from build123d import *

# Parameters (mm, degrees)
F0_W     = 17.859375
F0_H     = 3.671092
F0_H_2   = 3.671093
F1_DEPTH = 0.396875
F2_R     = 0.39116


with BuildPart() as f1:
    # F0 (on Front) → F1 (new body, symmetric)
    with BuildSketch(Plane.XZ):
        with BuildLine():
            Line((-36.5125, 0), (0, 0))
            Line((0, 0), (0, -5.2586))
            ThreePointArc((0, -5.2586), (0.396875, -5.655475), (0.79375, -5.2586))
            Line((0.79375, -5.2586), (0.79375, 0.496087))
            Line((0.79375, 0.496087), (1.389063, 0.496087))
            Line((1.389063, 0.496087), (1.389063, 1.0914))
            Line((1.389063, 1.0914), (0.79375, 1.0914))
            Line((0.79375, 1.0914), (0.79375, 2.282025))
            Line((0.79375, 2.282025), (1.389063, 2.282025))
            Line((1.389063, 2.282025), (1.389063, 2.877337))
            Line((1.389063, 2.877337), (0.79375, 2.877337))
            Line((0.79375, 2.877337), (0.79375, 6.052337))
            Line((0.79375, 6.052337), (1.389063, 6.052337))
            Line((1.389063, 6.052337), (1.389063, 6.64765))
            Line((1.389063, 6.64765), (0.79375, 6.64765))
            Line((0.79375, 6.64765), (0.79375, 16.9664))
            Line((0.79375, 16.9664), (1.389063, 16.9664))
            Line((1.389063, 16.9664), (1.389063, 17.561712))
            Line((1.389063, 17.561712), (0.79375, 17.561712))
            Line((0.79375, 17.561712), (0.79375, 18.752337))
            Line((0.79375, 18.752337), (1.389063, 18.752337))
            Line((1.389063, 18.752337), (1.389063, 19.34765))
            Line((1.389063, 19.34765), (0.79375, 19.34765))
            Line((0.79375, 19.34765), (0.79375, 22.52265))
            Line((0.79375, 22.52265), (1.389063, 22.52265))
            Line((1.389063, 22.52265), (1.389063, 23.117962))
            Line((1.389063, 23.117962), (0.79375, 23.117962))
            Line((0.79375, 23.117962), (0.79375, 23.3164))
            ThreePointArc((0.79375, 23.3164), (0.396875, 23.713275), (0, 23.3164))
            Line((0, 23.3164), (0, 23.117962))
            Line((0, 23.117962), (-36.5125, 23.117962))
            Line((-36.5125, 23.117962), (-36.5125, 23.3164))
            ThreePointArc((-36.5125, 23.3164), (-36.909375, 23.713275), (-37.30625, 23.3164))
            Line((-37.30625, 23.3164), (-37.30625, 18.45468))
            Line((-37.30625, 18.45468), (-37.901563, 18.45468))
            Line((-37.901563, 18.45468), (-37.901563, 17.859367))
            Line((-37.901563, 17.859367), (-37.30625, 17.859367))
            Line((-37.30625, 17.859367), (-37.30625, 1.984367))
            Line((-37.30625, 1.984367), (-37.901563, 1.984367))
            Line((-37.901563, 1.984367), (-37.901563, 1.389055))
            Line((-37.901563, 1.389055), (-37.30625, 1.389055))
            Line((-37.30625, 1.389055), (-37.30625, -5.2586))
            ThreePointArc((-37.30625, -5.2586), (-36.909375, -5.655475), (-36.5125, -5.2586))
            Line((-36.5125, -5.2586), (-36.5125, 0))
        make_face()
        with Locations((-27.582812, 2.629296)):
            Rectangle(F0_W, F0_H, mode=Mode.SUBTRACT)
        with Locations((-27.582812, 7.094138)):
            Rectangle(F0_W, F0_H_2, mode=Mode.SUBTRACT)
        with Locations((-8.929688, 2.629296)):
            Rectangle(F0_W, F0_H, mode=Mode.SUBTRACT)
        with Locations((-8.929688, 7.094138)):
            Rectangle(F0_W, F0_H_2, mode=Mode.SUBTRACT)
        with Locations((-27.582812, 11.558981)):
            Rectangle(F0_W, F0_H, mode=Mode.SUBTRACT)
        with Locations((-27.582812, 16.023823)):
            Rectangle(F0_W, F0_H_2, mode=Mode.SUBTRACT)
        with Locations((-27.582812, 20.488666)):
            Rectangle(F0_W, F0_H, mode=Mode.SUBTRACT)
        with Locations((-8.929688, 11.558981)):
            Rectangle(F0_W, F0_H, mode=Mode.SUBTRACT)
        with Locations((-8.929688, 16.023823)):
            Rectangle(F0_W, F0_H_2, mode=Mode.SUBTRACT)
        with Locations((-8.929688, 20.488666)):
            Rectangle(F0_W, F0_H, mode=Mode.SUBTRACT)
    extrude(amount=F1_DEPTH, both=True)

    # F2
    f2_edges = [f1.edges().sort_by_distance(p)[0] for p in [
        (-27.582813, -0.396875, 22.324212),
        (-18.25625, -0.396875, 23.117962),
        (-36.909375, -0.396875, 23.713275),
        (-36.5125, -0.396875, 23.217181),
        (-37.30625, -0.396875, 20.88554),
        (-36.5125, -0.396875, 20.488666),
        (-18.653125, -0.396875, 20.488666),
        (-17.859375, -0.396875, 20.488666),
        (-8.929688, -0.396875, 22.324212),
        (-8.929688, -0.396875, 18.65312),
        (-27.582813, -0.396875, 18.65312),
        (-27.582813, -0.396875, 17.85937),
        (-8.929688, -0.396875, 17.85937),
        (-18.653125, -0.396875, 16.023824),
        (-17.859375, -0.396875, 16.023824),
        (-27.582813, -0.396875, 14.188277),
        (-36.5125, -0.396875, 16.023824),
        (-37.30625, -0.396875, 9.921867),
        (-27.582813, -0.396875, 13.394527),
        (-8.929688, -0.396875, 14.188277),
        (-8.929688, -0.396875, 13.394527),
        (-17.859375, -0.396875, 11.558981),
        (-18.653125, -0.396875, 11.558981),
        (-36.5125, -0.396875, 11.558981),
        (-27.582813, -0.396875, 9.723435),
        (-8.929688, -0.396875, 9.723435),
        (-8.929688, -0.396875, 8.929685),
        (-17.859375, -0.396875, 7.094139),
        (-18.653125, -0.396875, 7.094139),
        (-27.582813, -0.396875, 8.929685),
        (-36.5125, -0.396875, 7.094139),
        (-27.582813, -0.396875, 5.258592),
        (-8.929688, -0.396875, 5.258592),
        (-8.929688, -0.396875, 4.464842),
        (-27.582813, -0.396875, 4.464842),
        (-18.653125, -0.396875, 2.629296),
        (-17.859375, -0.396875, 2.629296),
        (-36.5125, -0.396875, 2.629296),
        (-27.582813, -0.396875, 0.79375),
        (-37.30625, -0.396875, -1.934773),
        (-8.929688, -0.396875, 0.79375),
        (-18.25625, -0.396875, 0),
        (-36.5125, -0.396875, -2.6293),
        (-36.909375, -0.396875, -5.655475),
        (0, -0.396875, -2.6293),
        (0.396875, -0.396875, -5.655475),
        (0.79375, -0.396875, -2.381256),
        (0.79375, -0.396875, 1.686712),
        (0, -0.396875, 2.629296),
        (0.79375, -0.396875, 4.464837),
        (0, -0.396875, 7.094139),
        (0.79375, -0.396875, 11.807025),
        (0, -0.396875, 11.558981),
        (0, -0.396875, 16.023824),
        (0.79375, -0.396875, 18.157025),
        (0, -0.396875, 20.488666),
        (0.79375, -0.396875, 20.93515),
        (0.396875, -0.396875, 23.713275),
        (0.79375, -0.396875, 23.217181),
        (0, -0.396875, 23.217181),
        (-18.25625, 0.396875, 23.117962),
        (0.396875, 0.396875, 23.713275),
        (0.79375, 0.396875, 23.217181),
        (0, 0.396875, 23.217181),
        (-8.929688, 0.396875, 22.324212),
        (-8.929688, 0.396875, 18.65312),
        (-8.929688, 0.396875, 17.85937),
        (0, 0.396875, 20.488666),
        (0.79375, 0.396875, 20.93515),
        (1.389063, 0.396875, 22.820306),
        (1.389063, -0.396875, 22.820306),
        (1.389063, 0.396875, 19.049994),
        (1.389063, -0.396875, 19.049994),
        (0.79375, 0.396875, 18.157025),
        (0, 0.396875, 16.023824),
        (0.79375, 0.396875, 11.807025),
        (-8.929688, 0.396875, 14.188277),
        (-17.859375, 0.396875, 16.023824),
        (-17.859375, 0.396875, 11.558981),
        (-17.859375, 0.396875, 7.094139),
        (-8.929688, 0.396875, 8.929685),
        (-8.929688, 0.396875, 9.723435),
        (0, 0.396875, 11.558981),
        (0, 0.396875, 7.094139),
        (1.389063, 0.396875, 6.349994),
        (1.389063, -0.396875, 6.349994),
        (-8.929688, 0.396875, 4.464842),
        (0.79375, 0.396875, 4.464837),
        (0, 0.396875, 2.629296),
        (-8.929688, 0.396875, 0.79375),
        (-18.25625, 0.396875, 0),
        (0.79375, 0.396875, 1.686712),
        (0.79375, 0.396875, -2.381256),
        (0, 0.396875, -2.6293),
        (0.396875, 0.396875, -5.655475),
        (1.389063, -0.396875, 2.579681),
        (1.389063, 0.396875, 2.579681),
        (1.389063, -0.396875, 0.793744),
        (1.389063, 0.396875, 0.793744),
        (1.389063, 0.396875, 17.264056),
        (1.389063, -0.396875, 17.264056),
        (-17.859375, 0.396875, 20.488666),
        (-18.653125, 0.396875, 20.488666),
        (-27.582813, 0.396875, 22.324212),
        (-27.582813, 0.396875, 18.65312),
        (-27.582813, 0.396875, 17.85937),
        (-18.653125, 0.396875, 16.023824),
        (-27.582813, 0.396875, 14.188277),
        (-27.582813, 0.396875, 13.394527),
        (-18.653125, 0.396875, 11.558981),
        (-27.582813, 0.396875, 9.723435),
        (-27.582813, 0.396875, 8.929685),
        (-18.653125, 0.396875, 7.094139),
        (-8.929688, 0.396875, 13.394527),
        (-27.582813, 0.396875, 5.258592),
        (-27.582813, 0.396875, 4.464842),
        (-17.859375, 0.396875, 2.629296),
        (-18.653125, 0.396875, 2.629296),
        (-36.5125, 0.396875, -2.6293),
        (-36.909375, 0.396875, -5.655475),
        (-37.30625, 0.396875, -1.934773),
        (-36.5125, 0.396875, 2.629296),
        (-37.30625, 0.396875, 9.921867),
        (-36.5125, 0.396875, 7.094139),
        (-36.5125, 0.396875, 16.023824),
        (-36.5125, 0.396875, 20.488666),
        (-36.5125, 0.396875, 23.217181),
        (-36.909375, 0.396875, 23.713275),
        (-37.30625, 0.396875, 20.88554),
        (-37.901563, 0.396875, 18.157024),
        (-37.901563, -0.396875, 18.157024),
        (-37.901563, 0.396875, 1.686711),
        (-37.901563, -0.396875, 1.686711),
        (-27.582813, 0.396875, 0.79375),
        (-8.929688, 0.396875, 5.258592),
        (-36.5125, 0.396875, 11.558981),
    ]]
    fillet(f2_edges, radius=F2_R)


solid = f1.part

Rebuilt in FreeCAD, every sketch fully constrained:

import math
import FreeCAD as App
import Part
import Sketcher
Q = App.Units.Quantity


def edges_at(feature, points):
    """Names of the edges that pass closest to the given points."""
    edges = feature.Shape.Edges
    near = lambda p: min(range(len(edges)), key=lambda i: edges[i].distToShape(Part.Vertex(*p))[0])
    return sorted({f"Edge{near(p) + 1}" for p in points})

doc = App.newDocument("Part")
body = doc.addObject("PartDesign::Body", "Body")

sketch1 = body.newObject("Sketcher::SketchObject", "Sketch")
sketch1.AttachmentSupport = (doc.getObject("XZ_Plane"), [""])
sketch1.MapMode = "FlatFace"
sketch1.addGeometry([
    Part.LineSegment(App.Vector(-36.51, 0, 0), App.Vector(0, 0, 0)),
    Part.LineSegment(App.Vector(0, 0, 0), App.Vector(0, -5.26, 0)),
    Part.ArcOfCircle(Part.Circle(App.Vector(0.4, -5.26, 0), App.Vector(0, 0, 1), 0.4), math.radians(180), math.radians(360)),
    Part.LineSegment(App.Vector(0.79, -5.26, 0), App.Vector(0.79, 0.5, 0)),
    Part.LineSegment(App.Vector(0.79, 0.5, 0), App.Vector(1.39, 0.5, 0)),
    Part.LineSegment(App.Vector(1.39, 0.5, 0), App.Vector(1.39, 1.09, 0)),
    Part.LineSegment(App.Vector(1.39, 1.09, 0), App.Vector(0.79, 1.09, 0)),
    Part.LineSegment(App.Vector(0.79, 1.09, 0), App.Vector(0.79, 2.28, 0)),
    Part.LineSegment(App.Vector(0.79, 2.28, 0), App.Vector(1.39, 2.28, 0)),
    Part.LineSegment(App.Vector(1.39, 2.28, 0), App.Vector(1.39, 2.88, 0)),
    Part.LineSegment(App.Vector(1.39, 2.88, 0), App.Vector(0.79, 2.88, 0)),
    Part.LineSegment(App.Vector(0.79, 2.88, 0), App.Vector(0.79, 6.05, 0)),
    Part.LineSegment(App.Vector(0.79, 6.05, 0), App.Vector(1.39, 6.05, 0)),
    Part.LineSegment(App.Vector(1.39, 6.05, 0), App.Vector(1.39, 6.65, 0)),
    Part.LineSegment(App.Vector(1.39, 6.65, 0), App.Vector(0.79, 6.65, 0)),
    Part.LineSegment(App.Vector(0.79, 6.65, 0), App.Vector(0.79, 16.97, 0)),
    Part.LineSegment(App.Vector(0.79, 16.97, 0), App.Vector(1.39, 16.97, 0)),
    Part.LineSegment(App.Vector(1.39, 16.97, 0), App.Vector(1.39, 17.56, 0)),
    Part.LineSegment(App.Vector(1.39, 17.56, 0), App.Vector(0.79, 17.56, 0)),
    Part.LineSegment(App.Vector(0.79, 17.56, 0), App.Vector(0.79, 18.75, 0)),
    Part.LineSegment(App.Vector(0.79, 18.75, 0), App.Vector(1.39, 18.75, 0)),
    Part.LineSegment(App.Vector(1.39, 18.75, 0), App.Vector(1.39, 19.35, 0)),
    Part.LineSegment(App.Vector(1.39, 19.35, 0), App.Vector(0.79, 19.35, 0)),
    Part.LineSegment(App.Vector(0.79, 19.35, 0), App.Vector(0.79, 22.52, 0)),
    Part.LineSegment(App.Vector(0.79, 22.52, 0), App.Vector(1.39, 22.52, 0)),
    Part.LineSegment(App.Vector(1.39, 22.52, 0), App.Vector(1.39, 23.12, 0)),
    Part.LineSegment(App.Vector(1.39, 23.12, 0), App.Vector(0.79, 23.12, 0)),
    Part.LineSegment(App.Vector(0.79, 23.12, 0), App.Vector(0.79, 23.32, 0)),
    Part.ArcOfCircle(Part.Circle(App.Vector(0.4, 23.32, 0), App.Vector(0, 0, 1), 0.4), math.radians(0), math.radians(180)),
    Part.LineSegment(App.Vector(0, 23.32, 0), App.Vector(0, 23.12, 0)),
    Part.LineSegment(App.Vector(0, 23.12, 0), App.Vector(-36.51, 23.12, 0)),
    Part.LineSegment(App.Vector(-36.51, 23.12, 0), App.Vector(-36.51, 23.32, 0)),
    Part.ArcOfCircle(Part.Circle(App.Vector(-36.91, 23.32, 0), App.Vector(0, 0, 1), 0.4), math.radians(0), math.radians(180)),
    Part.LineSegment(App.Vector(-37.31, 23.32, 0), App.Vector(-37.31, 18.45, 0)),
    Part.LineSegment(App.Vector(-37.31, 18.45, 0), App.Vector(-37.9, 18.45, 0)),
    Part.LineSegment(App.Vector(-37.9, 18.45, 0), App.Vector(-37.9, 17.86, 0)),
    Part.LineSegment(App.Vector(-37.9, 17.86, 0), App.Vector(-37.31, 17.86, 0)),
    Part.LineSegment(App.Vector(-37.31, 17.86, 0), App.Vector(-37.31, 1.98, 0)),
    Part.LineSegment(App.Vector(-37.31, 1.98, 0), App.Vector(-37.9, 1.98, 0)),
    Part.LineSegment(App.Vector(-37.9, 1.98, 0), App.Vector(-37.9, 1.39, 0)),
    Part.LineSegment(App.Vector(-37.9, 1.39, 0), App.Vector(-37.31, 1.39, 0)),
    Part.LineSegment(App.Vector(-37.31, 1.39, 0), App.Vector(-37.31, -5.26, 0)),
    Part.ArcOfCircle(Part.Circle(App.Vector(-36.91, -5.26, 0), App.Vector(0, 0, 1), 0.4), math.radians(180), math.radians(360)),
    Part.LineSegment(App.Vector(-36.51, -5.26, 0), App.Vector(-36.51, 0, 0)),
    Part.LineSegment(App.Vector(-18.65, 0.79, 0), App.Vector(-36.51, 0.79, 0)),
    Part.LineSegment(App.Vector(-36.51, 0.79, 0), App.Vector(-36.51, 4.46, 0)),
    Part.LineSegment(App.Vector(-36.51, 4.46, 0), App.Vector(-18.65, 4.46, 0)),
    Part.LineSegment(App.Vector(-18.65, 4.46, 0), App.Vector(-18.65, 0.79, 0)),
    Part.LineSegment(App.Vector(-18.65, 5.26, 0), App.Vector(-36.51, 5.26, 0)),
    Part.LineSegment(App.Vector(-36.51, 5.26, 0), App.Vector(-36.51, 8.93, 0)),
    Part.LineSegment(App.Vector(-36.51, 8.93, 0), App.Vector(-18.65, 8.93, 0)),
    Part.LineSegment(App.Vector(-18.65, 8.93, 0), App.Vector(-18.65, 5.26, 0)),
    Part.LineSegment(App.Vector(0, 0.79, 0), App.Vector(-17.86, 0.79, 0)),
    Part.LineSegment(App.Vector(-17.86, 0.79, 0), App.Vector(-17.86, 4.46, 0)),
    Part.LineSegment(App.Vector(-17.86, 4.46, 0), App.Vector(0, 4.46, 0)),
    Part.LineSegment(App.Vector(0, 4.46, 0), App.Vector(0, 0.79, 0)),
    Part.LineSegment(App.Vector(0, 5.26, 0), App.Vector(-17.86, 5.26, 0)),
    Part.LineSegment(App.Vector(-17.86, 5.26, 0), App.Vector(-17.86, 8.93, 0)),
    Part.LineSegment(App.Vector(-17.86, 8.93, 0), App.Vector(0, 8.93, 0)),
    Part.LineSegment(App.Vector(0, 8.93, 0), App.Vector(0, 5.26, 0)),
    Part.LineSegment(App.Vector(-18.65, 9.72, 0), App.Vector(-36.51, 9.72, 0)),
    Part.LineSegment(App.Vector(-36.51, 9.72, 0), App.Vector(-36.51, 13.39, 0)),
    Part.LineSegment(App.Vector(-36.51, 13.39, 0), App.Vector(-18.65, 13.39, 0)),
    Part.LineSegment(App.Vector(-18.65, 13.39, 0), App.Vector(-18.65, 9.72, 0)),
    Part.LineSegment(App.Vector(-18.65, 14.19, 0), App.Vector(-36.51, 14.19, 0)),
    Part.LineSegment(App.Vector(-36.51, 14.19, 0), App.Vector(-36.51, 17.86, 0)),
    Part.LineSegment(App.Vector(-36.51, 17.86, 0), App.Vector(-18.65, 17.86, 0)),
    Part.LineSegment(App.Vector(-18.65, 17.86, 0), App.Vector(-18.65, 14.19, 0)),
    Part.LineSegment(App.Vector(-18.65, 18.65, 0), App.Vector(-36.51, 18.65, 0)),
    Part.LineSegment(App.Vector(-36.51, 18.65, 0), App.Vector(-36.51, 22.32, 0)),
    Part.LineSegment(App.Vector(-36.51, 22.32, 0), App.Vector(-18.65, 22.32, 0)),
    Part.LineSegment(App.Vector(-18.65, 22.32, 0), App.Vector(-18.65, 18.65, 0)),
    Part.LineSegment(App.Vector(0, 9.72, 0), App.Vector(-17.86, 9.72, 0)),
    Part.LineSegment(App.Vector(-17.86, 9.72, 0), App.Vector(-17.86, 13.39, 0)),
    Part.LineSegment(App.Vector(-17.86, 13.39, 0), App.Vector(0, 13.39, 0)),
    Part.LineSegment(App.Vector(0, 13.39, 0), App.Vector(0, 9.72, 0)),
    Part.LineSegment(App.Vector(0, 14.19, 0), App.Vector(-17.86, 14.19, 0)),
    Part.LineSegment(App.Vector(-17.86, 14.19, 0), App.Vector(-17.86, 17.86, 0)),
    Part.LineSegment(App.Vector(-17.86, 17.86, 0), App.Vector(0, 17.86, 0)),
    Part.LineSegment(App.Vector(0, 17.86, 0), App.Vector(0, 14.19, 0)),
    Part.LineSegment(App.Vector(0, 18.65, 0), App.Vector(-17.86, 18.65, 0)),
    Part.LineSegment(App.Vector(-17.86, 18.65, 0), App.Vector(-17.86, 22.32, 0)),
    Part.LineSegment(App.Vector(-17.86, 22.32, 0), App.Vector(0, 22.32, 0)),
    Part.LineSegment(App.Vector(0, 22.32, 0), App.Vector(0, 18.65, 0)),
], False)
sketch1.addConstraint([
    Sketcher.Constraint("Coincident", 0, 2, 1, 1),
    Sketcher.Constraint("Tangent", 1, 2, 2, 1),
    Sketcher.Constraint("Tangent", 2, 2, 3, 1),
    Sketcher.Constraint("Coincident", 3, 2, 4, 1),
    Sketcher.Constraint("Coincident", 4, 2, 5, 1),
    Sketcher.Constraint("Coincident", 5, 2, 6, 1),
    Sketcher.Constraint("Coincident", 6, 2, 7, 1),
    Sketcher.Constraint("Coincident", 7, 2, 8, 1),
    Sketcher.Constraint("Coincident", 8, 2, 9, 1),
    Sketcher.Constraint("Coincident", 9, 2, 10, 1),
    Sketcher.Constraint("Coincident", 10, 2, 11, 1),
    Sketcher.Constraint("Coincident", 11, 2, 12, 1),
    Sketcher.Constraint("Coincident", 12, 2, 13, 1),
    Sketcher.Constraint("Coincident", 13, 2, 14, 1),
    Sketcher.Constraint("Coincident", 14, 2, 15, 1),
    Sketcher.Constraint("Coincident", 15, 2, 16, 1),
    Sketcher.Constraint("Coincident", 16, 2, 17, 1),
    Sketcher.Constraint("Coincident", 17, 2, 18, 1),
    Sketcher.Constraint("Coincident", 18, 2, 19, 1),
    Sketcher.Constraint("Coincident", 19, 2, 20, 1),
    Sketcher.Constraint("Coincident", 20, 2, 21, 1),
    Sketcher.Constraint("Coincident", 21, 2, 22, 1),
    Sketcher.Constraint("Coincident", 22, 2, 23, 1),
    Sketcher.Constraint("Coincident", 23, 2, 24, 1),
    Sketcher.Constraint("Coincident", 24, 2, 25, 1),
    Sketcher.Constraint("Coincident", 25, 2, 26, 1),
    Sketcher.Constraint("Coincident", 26, 2, 27, 1),
    Sketcher.Constraint("Tangent", 27, 2, 28, 1),
    Sketcher.Constraint("Tangent", 28, 2, 29, 1),
    Sketcher.Constraint("Coincident", 29, 2, 30, 1),
    Sketcher.Constraint("Coincident", 30, 2, 31, 1),
    Sketcher.Constraint("Tangent", 31, 2, 32, 1),
    Sketcher.Constraint("Tangent", 32, 2, 33, 1),
    Sketcher.Constraint("Coincident", 33, 2, 34, 1),
    Sketcher.Constraint("Coincident", 34, 2, 35, 1),
    Sketcher.Constraint("Coincident", 35, 2, 36, 1),
    Sketcher.Constraint("Coincident", 36, 2, 37, 1),
    Sketcher.Constraint("Coincident", 37, 2, 38, 1),
    Sketcher.Constraint("Coincident", 38, 2, 39, 1),
    Sketcher.Constraint("Coincident", 39, 2, 40, 1),
    Sketcher.Constraint("Coincident", 40, 2, 41, 1),
    Sketcher.Constraint("Tangent", 41, 2, 42, 1),
    Sketcher.Constraint("Tangent", 42, 2, 43, 1),
    Sketcher.Constraint("Coincident", 43, 2, 0, 1),
    Sketcher.Constraint("Coincident", 44, 2, 45, 1),
    Sketcher.Constraint("Coincident", 45, 2, 46, 1),
    Sketcher.Constraint("Coincident", 46, 2, 47, 1),
    Sketcher.Constraint("Coincident", 47, 2, 44, 1),
    Sketcher.Constraint("Coincident", 48, 2, 49, 1),
    Sketcher.Constraint("Coincident", 49, 2, 50, 1),
    Sketcher.Constraint("Coincident", 50, 2, 51, 1),
    Sketcher.Constraint("Coincident", 51, 2, 48, 1),
    Sketcher.Constraint("Coincident", 52, 2, 53, 1),
    Sketcher.Constraint("Coincident", 53, 2, 54, 1),
    Sketcher.Constraint("Coincident", 54, 2, 55, 1),
    Sketcher.Constraint("Coincident", 55, 2, 52, 1),
    Sketcher.Constraint("Coincident", 56, 2, 57, 1),
    Sketcher.Constraint("Coincident", 57, 2, 58, 1),
    Sketcher.Constraint("Coincident", 58, 2, 59, 1),
    Sketcher.Constraint("Coincident", 59, 2, 56, 1),
    Sketcher.Constraint("Coincident", 60, 2, 61, 1),
    Sketcher.Constraint("Coincident", 61, 2, 62, 1),
    Sketcher.Constraint("Coincident", 62, 2, 63, 1),
    Sketcher.Constraint("Coincident", 63, 2, 60, 1),
    Sketcher.Constraint("Coincident", 64, 2, 65, 1),
    Sketcher.Constraint("Coincident", 65, 2, 66, 1),
    Sketcher.Constraint("Coincident", 66, 2, 67, 1),
    Sketcher.Constraint("Coincident", 67, 2, 64, 1),
    Sketcher.Constraint("Coincident", 68, 2, 69, 1),
    Sketcher.Constraint("Coincident", 69, 2, 70, 1),
    Sketcher.Constraint("Coincident", 70, 2, 71, 1),
    Sketcher.Constraint("Coincident", 71, 2, 68, 1),
    Sketcher.Constraint("Coincident", 72, 2, 73, 1),
    Sketcher.Constraint("Coincident", 73, 2, 74, 1),
    Sketcher.Constraint("Coincident", 74, 2, 75, 1),
    Sketcher.Constraint("Coincident", 75, 2, 72, 1),
    Sketcher.Constraint("Coincident", 76, 2, 77, 1),
    Sketcher.Constraint("Coincident", 77, 2, 78, 1),
    Sketcher.Constraint("Coincident", 78, 2, 79, 1),
    Sketcher.Constraint("Coincident", 79, 2, 76, 1),
    Sketcher.Constraint("Coincident", 80, 2, 81, 1),
    Sketcher.Constraint("Coincident", 81, 2, 82, 1),
    Sketcher.Constraint("Coincident", 82, 2, 83, 1),
    Sketcher.Constraint("Coincident", 83, 2, 80, 1),
    Sketcher.Constraint("Horizontal", 0),
    Sketcher.Constraint("Vertical", 1),
    Sketcher.Constraint("Vertical", 3),
    Sketcher.Constraint("Horizontal", 4),
    Sketcher.Constraint("Vertical", 5),
    Sketcher.Constraint("Horizontal", 6),
    Sketcher.Constraint("Vertical", 7),
    Sketcher.Constraint("Horizontal", 8),
    Sketcher.Constraint("Vertical", 9),
    Sketcher.Constraint("Horizontal", 10),
    Sketcher.Constraint("Vertical", 11),
    Sketcher.Constraint("Horizontal", 12),
    Sketcher.Constraint("Vertical", 13),
    Sketcher.Constraint("Horizontal", 14),
    Sketcher.Constraint("Vertical", 15),
    Sketcher.Constraint("Horizontal", 16),
    Sketcher.Constraint("Vertical", 17),
    Sketcher.Constraint("Horizontal", 18),
    Sketcher.Constraint("Vertical", 19),
    Sketcher.Constraint("Horizontal", 20),
    Sketcher.Constraint("Vertical", 21),
    Sketcher.Constraint("Horizontal", 22),
    Sketcher.Constraint("Vertical", 23),
    Sketcher.Constraint("Horizontal", 24),
    Sketcher.Constraint("Vertical", 25),
    Sketcher.Constraint("Horizontal", 26),
    Sketcher.Constraint("Vertical", 27),
    Sketcher.Constraint("Vertical", 29),
    Sketcher.Constraint("Horizontal", 30),
    Sketcher.Constraint("Vertical", 31),
    Sketcher.Constraint("Vertical", 33),
    Sketcher.Constraint("Horizontal", 34),
    Sketcher.Constraint("Vertical", 35),
    Sketcher.Constraint("Horizontal", 36),
    Sketcher.Constraint("Vertical", 37),
    Sketcher.Constraint("Horizontal", 38),
    Sketcher.Constraint("Vertical", 39),
    Sketcher.Constraint("Horizontal", 40),
    Sketcher.Constraint("Vertical", 41),
    Sketcher.Constraint("Vertical", 43),
    Sketcher.Constraint("Horizontal", 44),
    Sketcher.Constraint("Vertical", 45),
    Sketcher.Constraint("Horizontal", 46),
    Sketcher.Constraint("Vertical", 47),
    Sketcher.Constraint("Horizontal", 48),
    Sketcher.Constraint("Vertical", 49),
    Sketcher.Constraint("Horizontal", 50),
    Sketcher.Constraint("Vertical", 51),
    Sketcher.Constraint("Horizontal", 52),
    Sketcher.Constraint("Vertical", 53),
    Sketcher.Constraint("Horizontal", 54),
    Sketcher.Constraint("Vertical", 55),
    Sketcher.Constraint("Horizontal", 56),
    Sketcher.Constraint("Vertical", 57),
    Sketcher.Constraint("Horizontal", 58),
    Sketcher.Constraint("Vertical", 59),
    Sketcher.Constraint("Horizontal", 60),
    Sketcher.Constraint("Vertical", 61),
    Sketcher.Constraint("Horizontal", 62),
    Sketcher.Constraint("Vertical", 63),
    Sketcher.Constraint("Horizontal", 64),
    Sketcher.Constraint("Vertical", 65),
    Sketcher.Constraint("Horizontal", 66),
    Sketcher.Constraint("Vertical", 67),
    Sketcher.Constraint("Horizontal", 68),
    Sketcher.Constraint("Vertical", 69),
    Sketcher.Constraint("Horizontal", 70),
    Sketcher.Constraint("Vertical", 71),
    Sketcher.Constraint("Horizontal", 72),
    Sketcher.Constraint("Vertical", 73),
    Sketcher.Constraint("Horizontal", 74),
    Sketcher.Constraint("Vertical", 75),
    Sketcher.Constraint("Horizontal", 76),
    Sketcher.Constraint("Vertical", 77),
    Sketcher.Constraint("Horizontal", 78),
    Sketcher.Constraint("Vertical", 79),
    Sketcher.Constraint("Horizontal", 80),
    Sketcher.Constraint("Vertical", 81),
    Sketcher.Constraint("Horizontal", 82),
    Sketcher.Constraint("Vertical", 83),
    Sketcher.Constraint("Coincident", 0, 2, -1, 1),
    Sketcher.Constraint("Equal", 2, 28),
    Sketcher.Constraint("Equal", 28, 32),
    Sketcher.Constraint("Equal", 32, 42),
    Sketcher.Constraint("Symmetric", 1, 2, 59, 2, -1, 1),
    Sketcher.Constraint("Symmetric", 42, 2, 48, 2, -1),
    Sketcher.Constraint("PointOnObject", 28, 2, -2),
    Sketcher.Constraint("PointOnObject", 54, 2, -2),
    Sketcher.Constraint("PointOnObject", 74, 2, -2),
    Sketcher.Constraint("PointOnObject", 78, 2, -2),
    Sketcher.Constraint("PointOnObject", 82, 2, -2),
    Sketcher.Constraint("Horizontal", 28, 3, 32, 3),
    Sketcher.Constraint("Horizontal", 2, 3, 42, 3),
    Sketcher.Constraint("Horizontal", 26, 2, 29, 2),
    Sketcher.Constraint("Horizontal", 47, 2, 52, 2),
    Sketcher.Constraint("Horizontal", 46, 2, 53, 2),
    Sketcher.Constraint("Horizontal", 50, 2, 57, 2),
    Sketcher.Constraint("Horizontal", 63, 2, 72, 2),
    Sketcher.Constraint("Horizontal", 62, 2, 73, 2),
    Sketcher.Constraint("Horizontal", 67, 2, 76, 2),
    Sketcher.Constraint("Horizontal", 66, 2, 77, 2),
    Sketcher.Constraint("Horizontal", 71, 2, 80, 2),
    Sketcher.Constraint("Horizontal", 70, 2, 81, 2),
    Sketcher.Constraint("Vertical", 32, 3, 42, 3),
    Sketcher.Constraint("Vertical", 3, 2, 6, 2),
    Sketcher.Constraint("Vertical", 5, 2, 8, 2),
    Sketcher.Constraint("Vertical", 7, 2, 10, 2),
    Sketcher.Constraint("Vertical", 9, 2, 12, 2),
    Sketcher.Constraint("Vertical", 11, 2, 14, 2),
    Sketcher.Constraint("Vertical", 13, 2, 16, 2),
    Sketcher.Constraint("Vertical", 15, 2, 18, 2),
    Sketcher.Constraint("Vertical", 17, 2, 20, 2),
    Sketcher.Constraint("Vertical", 19, 2, 22, 2),
    Sketcher.Constraint("Vertical", 21, 2, 24, 2),
    Sketcher.Constraint("Vertical", 33, 2, 36, 2),
    Sketcher.Constraint("Vertical", 35, 2, 38, 2),
    Sketcher.Constraint("Vertical", 43, 2, 44, 2),
    Sketcher.Constraint("Vertical", 47, 2, 50, 2),
    Sketcher.Constraint("Vertical", 53, 2, 56, 2),
    Sketcher.Constraint("Vertical", 49, 2, 60, 2),
    Sketcher.Constraint("Vertical", 51, 2, 62, 2),
    Sketcher.Constraint("Vertical", 61, 2, 64, 2),
    Sketcher.Constraint("Vertical", 63, 2, 66, 2),
    Sketcher.Constraint("Vertical", 65, 2, 68, 2),
    Sketcher.Constraint("Vertical", 67, 2, 70, 2),
    Sketcher.Constraint("Vertical", 57, 2, 72, 2),
    Sketcher.Constraint("Vertical", 73, 2, 76, 2),
    Sketcher.Constraint("Vertical", 77, 2, 80, 2),
    Sketcher.Constraint("Equal", 26, 34),
    Sketcher.Constraint("Equal", 50, 52),
    Sketcher.Constraint("Equal", 40, 5),
    Sketcher.Constraint("Equal", 5, 9),
    Sketcher.Constraint("Equal", 9, 13),
    Sketcher.Constraint("Equal", 13, 17),
    Sketcher.Constraint("Equal", 7, 19),
    Sketcher.Constraint("Equal", 17, 21),
    Sketcher.Constraint("Equal", 11, 23),
    Sketcher.Constraint("Equal", 21, 25),
    Sketcher.Constraint("Equal", 25, 35),
    Sketcher.Constraint("Equal", 35, 39),
    Sketcher.Constraint("Equal", 47, 49),
    Sketcher.Constraint("Equal", 59, 61),
    Sketcher.Constraint("Equal", 63, 65),
    Sketcher.Constraint("Equal", 67, 69),
    Sketcher.Constraint("Radius", 2, Q("0.015625 in")),
    Sketcher.Constraint("DistanceX", 0, 1, 0, 2, Q("1.4375 in")),
    Sketcher.Constraint("DistanceX", 44, 2, 44, 1, Q("0.703125 in")),
    Sketcher.Constraint("DistanceY", 7, 1, 7, 2, Q("0.046875 in")),
    Sketcher.Constraint("DistanceY", 11, 1, 11, 2, Q("0.125 in")),
    Sketcher.Constraint("DistanceY", 15, 1, 15, 2, Q("0.40625 in")),
    Sketcher.Constraint("DistanceY", 37, 2, 37, 1, Q("0.625 in")),
    Sketcher.Constraint("DistanceY", -1, 1, 44, 2, Q("0.03125 in")),
    Sketcher.Constraint("DistanceY", 1, 2, 1, 1, Q("5.2586 mm")),
    Sketcher.Constraint("DistanceY", 9, 1, 9, 2, Q("0.595312 mm")),
    Sketcher.Constraint("DistanceY", 27, 1, 27, 2, Q("0.198438 mm")),
    Sketcher.Constraint("DistanceY", 33, 2, 33, 1, Q("4.86172 mm")),
    Sketcher.Constraint("DistanceY", 45, 1, 45, 2, Q("3.671092 mm")),
    Sketcher.Constraint("DistanceY", -1, 1, 28, 3, Q("23.3164 mm")),
    Sketcher.Constraint("DistanceY", -1, 1, 65, 2, Q("17.859369 mm")),
    Sketcher.Constraint("DistanceY", -1, 1, 68, 2, Q("18.65312 mm")),
    Sketcher.Constraint("DistanceY", -1, 1, 60, 2, Q("9.723435 mm")),
])
pad1 = body.newObject("PartDesign::Pad", "Pad")
pad1.Profile = sketch1
pad1.Length = Q("0.03125 in")
pad1.Midplane = True
doc.recompute()

fillet = body.newObject("PartDesign::Fillet", "Fillet")
fillet.Base = (pad1, edges_at(pad1, [
    (-27.583, -0.397, 22.324),
    (-18.256, -0.397, 23.118),
    (-36.909, -0.397, 23.713),
    (-36.513, -0.397, 23.217),
    (-37.306, -0.397, 20.886),
    (-36.512, -0.397, 20.489),
    (-18.653, -0.397, 20.489),
    (-17.859, -0.397, 20.489),
    (-8.93, -0.397, 22.324),
    (-8.93, -0.397, 18.653),
    (-27.583, -0.397, 18.653),
    (-27.583, -0.397, 17.859),
    (-8.93, -0.397, 17.859),
    (-18.653, -0.397, 16.024),
    (-17.859, -0.397, 16.024),
    (-27.583, -0.397, 14.188),
    (-36.512, -0.397, 16.024),
    (-37.306, -0.397, 9.922),
    (-27.583, -0.397, 13.395),
    (-8.93, -0.397, 14.188),
    (-8.93, -0.397, 13.395),
    (-17.859, -0.397, 11.559),
    (-18.653, -0.397, 11.559),
    (-36.512, -0.397, 11.559),
    (-27.583, -0.397, 9.723),
    (-8.93, -0.397, 9.723),
    (-8.93, -0.397, 8.93),
    (-17.859, -0.397, 7.094),
    (-18.653, -0.397, 7.094),
    (-27.583, -0.397, 8.93),
    (-36.512, -0.397, 7.094),
    (-27.583, -0.397, 5.259),
    (-8.93, -0.397, 5.259),
    (-8.93, -0.397, 4.465),
    (-27.583, -0.397, 4.465),
    (-18.653, -0.397, 2.629),
    (-17.859, -0.397, 2.629),
    (-36.512, -0.397, 2.629),
    (-27.583, -0.397, 0.794),
    (-37.306, -0.397, -1.935),
    (-8.93, -0.397, 0.794),
    (-18.256, -0.397, 0),
    (-36.513, -0.397, -2.629),
    (-36.909, -0.397, -5.655),
    (0, -0.397, -2.629),
    (0.397, -0.397, -5.655),
    (0.794, -0.397, -2.381),
    (0.794, -0.397, 1.687),
    (0, -0.397, 2.629),
    (0.794, -0.397, 4.465),
    (0, -0.397, 7.094),
    (0.794, -0.397, 11.807),
    (0, -0.397, 11.559),
    (0, -0.397, 16.024),
    (0.794, -0.397, 18.157),
    (0, -0.397, 20.489),
    (0.794, -0.397, 20.935),
    (0.397, -0.397, 23.713),
    (0.794, -0.397, 23.217),
    (0, -0.397, 23.217),
    (-18.256, 0.397, 23.118),
    (0.397, 0.397, 23.713),
    (0.794, 0.397, 23.217),
    (0, 0.397, 23.217),
    (-8.93, 0.397, 22.324),
    (-8.93, 0.397, 18.653),
    (-8.93, 0.397, 17.859),
    (0, 0.397, 20.489),
    (0.794, 0.397, 20.935),
    (1.389, 0.397, 22.82),
    (1.389, -0.397, 22.82),
    (1.389, 0.397, 19.05),
    (1.389, -0.397, 19.05),
    (0.794, 0.397, 18.157),
    (0, 0.397, 16.024),
    (0.794, 0.397, 11.807),
    (-8.93, 0.397, 14.188),
    (-17.859, 0.397, 16.024),
    (-17.859, 0.397, 11.559),
    (-17.859, 0.397, 7.094),
    (-8.93, 0.397, 8.93),
    (-8.93, 0.397, 9.723),
    (0, 0.397, 11.559),
    (0, 0.397, 7.094),
    (1.389, 0.397, 6.35),
    (1.389, -0.397, 6.35),
    (-8.93, 0.397, 4.465),
    (0.794, 0.397, 4.465),
    (0, 0.397, 2.629),
    (-8.93, 0.397, 0.794),
    (-18.256, 0.397, 0),
    (0.794, 0.397, 1.687),
    (0.794, 0.397, -2.381),
    (0, 0.397, -2.629),
    (0.397, 0.397, -5.655),
    (1.389, -0.397, 2.58),
    (1.389, 0.397, 2.58),
    (1.389, -0.397, 0.794),
    (1.389, 0.397, 0.794),
    (1.389, 0.397, 17.264),
    (1.389, -0.397, 17.264),
    (-17.859, 0.397, 20.489),
    (-18.653, 0.397, 20.489),
    (-27.583, 0.397, 22.324),
    (-27.583, 0.397, 18.653),
    (-27.583, 0.397, 17.859),
    (-18.653, 0.397, 16.024),
    (-27.583, 0.397, 14.188),
    (-27.583, 0.397, 13.395),
    (-18.653, 0.397, 11.559),
    (-27.583, 0.397, 9.723),
    (-27.583, 0.397, 8.93),
    (-18.653, 0.397, 7.094),
    (-8.93, 0.397, 13.395),
    (-27.583, 0.397, 5.259),
    (-27.583, 0.397, 4.465),
    (-17.859, 0.397, 2.629),
    (-18.653, 0.397, 2.629),
    (-36.513, 0.397, -2.629),
    (-36.909, 0.397, -5.655),
    (-37.306, 0.397, -1.935),
    (-36.512, 0.397, 2.629),
    (-37.306, 0.397, 9.922),
    (-36.512, 0.397, 7.094),
    (-36.512, 0.397, 16.024),
    (-36.512, 0.397, 20.489),
    (-36.513, 0.397, 23.217),
    (-36.909, 0.397, 23.713),
    (-37.306, 0.397, 20.886),
    (-37.902, 0.397, 18.157),
    (-37.902, -0.397, 18.157),
    (-37.902, 0.397, 1.687),
    (-37.902, -0.397, 1.687),
    (-27.583, 0.397, 0.794),
    (-8.93, 0.397, 5.259),
    (-36.512, 0.397, 11.559),
]))
fillet.Radius = Q("0.0154 in")

doc.recompute()
